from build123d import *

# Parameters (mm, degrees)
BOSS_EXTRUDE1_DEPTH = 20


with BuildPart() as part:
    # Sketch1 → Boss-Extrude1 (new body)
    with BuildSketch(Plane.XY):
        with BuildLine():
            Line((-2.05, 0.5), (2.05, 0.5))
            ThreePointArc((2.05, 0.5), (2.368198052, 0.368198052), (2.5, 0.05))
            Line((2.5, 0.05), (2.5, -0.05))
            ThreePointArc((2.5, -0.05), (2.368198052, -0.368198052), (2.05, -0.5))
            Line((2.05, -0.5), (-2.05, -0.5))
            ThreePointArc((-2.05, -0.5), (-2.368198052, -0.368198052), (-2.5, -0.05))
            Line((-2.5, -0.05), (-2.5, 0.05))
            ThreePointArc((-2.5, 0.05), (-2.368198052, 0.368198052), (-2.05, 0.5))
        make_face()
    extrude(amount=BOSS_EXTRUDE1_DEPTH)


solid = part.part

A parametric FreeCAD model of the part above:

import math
import FreeCAD as App
import Part
import Sketcher
from FreeCAD import Vector
Q = App.Units.Quantity

doc = App.newDocument("Part")
body = doc.addObject("PartDesign::Body", "Body")

sketch1 = doc.addObject("Sketcher::SketchObject", "Sketch")
body.addObject(sketch1)
sketch1.AttachmentSupport = (doc.XY_Plane, [""])
sketch1.MapMode = "FlatFace"
sketch1.addGeometry([
    Part.LineSegment(Vector(2.05, 0.5, 0), Vector(-2.05, 0.5, 0)),
    Part.ArcOfCircle(Part.Circle(Vector(-2.05, 0.05, 0), Vector(0, 0, 1), 0.45), math.radians(90), math.radians(180)),
    Part.LineSegment(Vector(-2.5, 0.05, 0), Vector(-2.5, -0.05, 0)),
    Part.ArcOfCircle(Part.Circle(Vector(-2.05, -0.05, 0), Vector(0, 0, 1), 0.45), math.radians(180), math.radians(270)),
    Part.LineSegment(Vector(-2.05, -0.5, 0), Vector(2.05, -0.5, 0)),
    Part.ArcOfCircle(Part.Circle(Vector(2.05, -0.05, 0), Vector(0, 0, 1), 0.45), math.radians(-90), math.radians(0)),
    Part.LineSegment(Vector(2.5, -0.05, 0), Vector(2.5, 0.05, 0)),
    Part.ArcOfCircle(Part.Circle(Vector(2.05, 0.05, 0), Vector(0, 0, 1), 0.45), math.radians(0), math.radians(90)),
], False)
sketch1.addConstraint([
    Sketcher.Constraint("Tangent", 0, 2, 1, 1),
    Sketcher.Constraint("Tangent", 1, 2, 2, 1),
    Sketcher.Constraint("Tangent", 2, 2, 3, 1),
    Sketcher.Constraint("Tangent", 3, 2, 4, 1),
    Sketcher.Constraint("Tangent", 4, 2, 5, 1),
    Sketcher.Constraint("Tangent", 5, 2, 6, 1),
    Sketcher.Constraint("Tangent", 6, 2, 7, 1),
    Sketcher.Constraint("Tangent", 7, 2, 0, 1),
    Sketcher.Constraint("Horizontal", 0),
    Sketcher.Constraint("Vertical", 2),
    Sketcher.Constraint("Horizontal", 4),
    Sketcher.Constraint("Vertical", 6),
    Sketcher.Constraint("Equal", 1, 3),
    Sketcher.Constraint("Equal", 3, 5),
    Sketcher.Constraint("Equal", 5, 7),
    Sketcher.Constraint("Symmetric", 1, 3, 5, 3, -1, 1),
    Sketcher.Constraint("Radius", 1, Q("0.45 mm")),
    Sketcher.Constraint("DistanceX", 0, 2, 0, 1, Q("4.1 mm")),
    Sketcher.Constraint("DistanceY", 2, 2, 2, 1, Q("0.1 mm")),
])
pad1 = doc.addObject("PartDesign::Pad", "Pad")
body.addObject(pad1)
pad1.Profile = sketch1
pad1.Length = 20

doc.recompute()
